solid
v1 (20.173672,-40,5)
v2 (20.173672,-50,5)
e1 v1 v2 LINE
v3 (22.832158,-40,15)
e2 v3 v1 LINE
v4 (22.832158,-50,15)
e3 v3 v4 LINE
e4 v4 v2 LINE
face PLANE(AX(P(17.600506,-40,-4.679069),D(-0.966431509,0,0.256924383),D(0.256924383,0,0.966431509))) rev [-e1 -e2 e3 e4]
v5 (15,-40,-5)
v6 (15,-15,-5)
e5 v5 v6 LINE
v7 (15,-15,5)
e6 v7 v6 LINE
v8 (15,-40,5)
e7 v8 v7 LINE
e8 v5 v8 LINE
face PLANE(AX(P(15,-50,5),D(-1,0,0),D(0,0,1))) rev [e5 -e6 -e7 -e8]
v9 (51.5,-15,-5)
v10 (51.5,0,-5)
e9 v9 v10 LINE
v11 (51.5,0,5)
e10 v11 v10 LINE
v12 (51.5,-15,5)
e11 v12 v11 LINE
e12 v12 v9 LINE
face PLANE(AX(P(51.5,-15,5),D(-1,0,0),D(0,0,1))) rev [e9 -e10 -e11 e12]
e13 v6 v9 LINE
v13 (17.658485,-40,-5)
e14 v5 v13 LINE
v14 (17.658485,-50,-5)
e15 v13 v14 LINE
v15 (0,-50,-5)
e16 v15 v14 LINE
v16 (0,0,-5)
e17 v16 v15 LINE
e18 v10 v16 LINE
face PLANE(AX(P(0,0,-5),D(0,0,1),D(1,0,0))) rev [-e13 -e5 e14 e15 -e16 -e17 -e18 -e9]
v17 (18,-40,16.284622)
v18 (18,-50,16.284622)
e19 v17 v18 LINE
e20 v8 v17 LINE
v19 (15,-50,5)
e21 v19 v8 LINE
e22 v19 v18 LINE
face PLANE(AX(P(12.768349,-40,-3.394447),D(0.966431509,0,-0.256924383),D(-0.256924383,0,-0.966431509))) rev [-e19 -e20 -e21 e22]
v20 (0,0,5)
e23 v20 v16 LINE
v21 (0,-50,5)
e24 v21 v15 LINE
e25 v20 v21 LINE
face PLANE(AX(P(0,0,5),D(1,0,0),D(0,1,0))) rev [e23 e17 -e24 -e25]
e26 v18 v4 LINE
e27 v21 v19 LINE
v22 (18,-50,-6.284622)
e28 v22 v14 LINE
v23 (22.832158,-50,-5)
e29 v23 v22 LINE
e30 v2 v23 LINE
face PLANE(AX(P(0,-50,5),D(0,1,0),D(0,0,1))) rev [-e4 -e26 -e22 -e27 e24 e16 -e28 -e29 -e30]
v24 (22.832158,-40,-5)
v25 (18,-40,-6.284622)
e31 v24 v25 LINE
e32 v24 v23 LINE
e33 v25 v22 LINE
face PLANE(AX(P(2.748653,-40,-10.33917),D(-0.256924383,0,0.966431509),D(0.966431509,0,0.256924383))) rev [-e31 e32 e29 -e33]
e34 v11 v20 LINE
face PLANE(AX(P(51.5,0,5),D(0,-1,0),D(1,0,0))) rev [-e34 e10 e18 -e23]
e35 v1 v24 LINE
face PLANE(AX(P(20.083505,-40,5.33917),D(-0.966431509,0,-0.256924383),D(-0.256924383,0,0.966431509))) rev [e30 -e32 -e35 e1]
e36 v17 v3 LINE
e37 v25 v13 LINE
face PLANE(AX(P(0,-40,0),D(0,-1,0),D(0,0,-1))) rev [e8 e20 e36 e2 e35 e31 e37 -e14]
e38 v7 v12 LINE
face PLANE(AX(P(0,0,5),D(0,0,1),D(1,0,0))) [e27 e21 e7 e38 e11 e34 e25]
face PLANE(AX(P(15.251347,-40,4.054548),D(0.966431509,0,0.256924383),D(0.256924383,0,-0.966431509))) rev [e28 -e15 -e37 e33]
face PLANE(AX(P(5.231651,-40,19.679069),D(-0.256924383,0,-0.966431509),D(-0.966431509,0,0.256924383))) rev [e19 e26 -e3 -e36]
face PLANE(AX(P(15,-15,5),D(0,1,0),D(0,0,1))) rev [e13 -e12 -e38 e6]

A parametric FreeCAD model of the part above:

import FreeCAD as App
import Part
import Sketcher
Q = App.Units.Quantity


def add_polygon(sketch, points):
    """Adds a closed chain of lines whose ends are joined by coincident constraints."""
    first, n = sketch.GeometryCount, len(points)
    for a, b in zip(points, points[1:] + points[:1]):
        sketch.addGeometry(Part.LineSegment(App.Vector(*a, 0), App.Vector(*b, 0)), False)
    for i in range(n):
        sketch.addConstraint(Sketcher.Constraint("Coincident", first + i, 2, first + (i + 1) % n, 1))

doc = App.newDocument("Part")
body = doc.addObject("PartDesign::Body", "Body")

sketch1 = doc.addObject("Sketcher::SketchObject", "Sketch")
body.addObject(sketch1)
sketch1.AttachmentSupport = (doc.XY_Plane, [""])
sketch1.MapMode = "FlatFace"
add_polygon(sketch1, [(52, 0), (0, 0), (0, -50), (15, -50), (15, -15), (52, -15)])
sketch1.addConstraint([
    Sketcher.Constraint("Horizontal", 0),
    Sketcher.Constraint("Vertical", 1),
    Sketcher.Constraint("Horizontal", 2),
    Sketcher.Constraint("Vertical", 3),
    Sketcher.Constraint("Horizontal", 4),
    Sketcher.Constraint("Vertical", 5),
    Sketcher.Constraint("Coincident", 0, 2, -1, 1),
    Sketcher.Constraint("Equal", 2, 5),
    Sketcher.Constraint("DistanceX", 2, 1, 2, 2, Q("15 mm")),
    Sketcher.Constraint("DistanceY", 1, 2, 1, 1, Q("50 mm")),
    Sketcher.Constraint("DistanceX", 0, 2, 0, 1, Q("51.5 mm")),
])
pad1 = doc.addObject("PartDesign::Pad", "Pad")
body.addObject(pad1)
pad1.Profile = sketch1
pad1.Length = 10
pad1.Midplane = True

sketch2 = doc.addObject("Sketcher::SketchObject", "Sketch001")
body.addObject(sketch2)
sketch2.AttachmentSupport = (doc.XZ_Plane, [""])
sketch2.MapMode = "FlatFace"
sketch2.AttachmentOffset = App.Placement(App.Vector(0, 0, 50), App.Rotation())
add_polygon(sketch2, [(22.8, -5), (20.2, 5), (22.8, 15), (18, 16.3), (15, 5), (15, -5), (17.7, -5), (18, -6.3)])
sketch2.addConstraint([
    Sketcher.Constraint("Vertical", 4),
    Sketcher.Constraint("Horizontal", 5),
    Sketcher.Constraint("Perpendicular", 1, 2),
    Sketcher.Constraint("Perpendicular", 2, 3),
    Sketcher.Constraint("Parallel", 0, 6),
    Sketcher.Constraint("Perpendicular", 6, 7),
    Sketcher.Constraint("Horizontal", 0, 2, 3, 2),
    Sketcher.Constraint("Horizontal", 5, 2, 7, 2),
    Sketcher.Constraint("Vertical", 2, 2, 6, 2),
    Sketcher.Constraint("Vertical", 1, 2, 7, 2),
    Sketcher.Constraint("Equal", 0, 1),
    Sketcher.Constraint("DistanceY", 4, 2, 4, 1, Q("10 mm")),
    Sketcher.Constraint("Distance", 2, Q("5 mm")),
    Sketcher.Constraint("DistanceY", -1, 1, 0, 2, Q("5 mm")),
    Sketcher.Constraint("DistanceX", -1, 1, 2, 2, Q("18 mm")),
    Sketcher.Constraint("DistanceX", -1, 1, 3, 2, Q("15 mm")),
])
pad2 = doc.addObject("PartDesign::Pad", "Pad001")
body.addObject(pad2)
pad2.Profile = sketch2
pad2.Length = 10
pad2.Reversed = True

doc.recompute()
